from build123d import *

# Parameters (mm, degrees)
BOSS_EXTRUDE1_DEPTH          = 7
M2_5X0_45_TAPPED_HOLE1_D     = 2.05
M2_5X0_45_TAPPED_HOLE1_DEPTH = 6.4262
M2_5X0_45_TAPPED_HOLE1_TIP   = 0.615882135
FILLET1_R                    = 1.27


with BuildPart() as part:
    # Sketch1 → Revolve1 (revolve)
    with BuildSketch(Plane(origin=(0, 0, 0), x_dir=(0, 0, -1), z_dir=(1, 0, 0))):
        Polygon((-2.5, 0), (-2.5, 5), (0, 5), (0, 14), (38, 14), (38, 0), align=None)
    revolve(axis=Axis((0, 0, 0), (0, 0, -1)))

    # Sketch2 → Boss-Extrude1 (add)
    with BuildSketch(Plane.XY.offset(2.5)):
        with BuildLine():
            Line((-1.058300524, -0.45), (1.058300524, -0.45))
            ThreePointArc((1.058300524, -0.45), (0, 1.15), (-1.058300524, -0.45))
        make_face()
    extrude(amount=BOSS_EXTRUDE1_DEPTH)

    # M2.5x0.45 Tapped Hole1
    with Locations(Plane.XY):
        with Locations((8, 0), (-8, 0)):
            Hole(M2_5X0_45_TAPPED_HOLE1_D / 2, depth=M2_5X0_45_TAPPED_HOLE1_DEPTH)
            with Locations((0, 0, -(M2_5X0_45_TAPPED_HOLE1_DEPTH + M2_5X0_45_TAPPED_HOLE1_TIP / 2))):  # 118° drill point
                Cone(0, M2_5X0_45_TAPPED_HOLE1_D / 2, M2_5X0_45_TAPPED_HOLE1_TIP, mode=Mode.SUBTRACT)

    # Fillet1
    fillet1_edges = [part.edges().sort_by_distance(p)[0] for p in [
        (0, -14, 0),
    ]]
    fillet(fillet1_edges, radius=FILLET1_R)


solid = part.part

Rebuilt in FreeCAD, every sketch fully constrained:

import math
import FreeCAD as App
import Part
import Sketcher


def edges_at(feature, points):
    """Names of the edges that pass closest to the given points."""
    edges = feature.Shape.Edges
    near = lambda p: min(range(len(edges)), key=lambda i: edges[i].distToShape(Part.Vertex(*p))[0])
    return sorted({f"Edge{near(p) + 1}" for p in points})


def add_polygon(sketch, points):
    """Adds a closed chain of lines whose ends are joined by coincident constraints."""
    first, n = sketch.GeometryCount, len(points)
    for a, b in zip(points, points[1:] + points[:1]):
        sketch.addGeometry(Part.LineSegment(App.Vector(*a, 0), App.Vector(*b, 0)), False)
    for i in range(n):
        sketch.addConstraint(Sketcher.Constraint("Coincident", first + i, 2, first + (i + 1) % n, 1))

doc = App.newDocument("Part")
body = doc.addObject("PartDesign::Body", "Body")

# Sketch on YZ plane
sketch1 = body.newObject("Sketcher::SketchObject", "Sketch")
sketch1.AttachmentSupport = (doc.getObject("YZ_Plane"), [""])
sketch1.MapMode = "FlatFace"
add_polygon(sketch1, [(5, 2.5), (0, 2.5), (0, -38), (14, -38), (14, 0), (5, 0)])  # lines 0-5
sketch1.addConstraint(Sketcher.Constraint("Horizontal", 0))
sketch1.addConstraint(Sketcher.Constraint("Vertical", 1))
sketch1.addConstraint(Sketcher.Constraint("Horizontal", 2))
sketch1.addConstraint(Sketcher.Constraint("Vertical", 3))
sketch1.addConstraint(Sketcher.Constraint("Horizontal", 4))
sketch1.addConstraint(Sketcher.Constraint("Vertical", 5))
sketch1.addConstraint(Sketcher.Constraint("PointOnObject", 0, 2, -2))
sketch1.addConstraint(Sketcher.Constraint("PointOnObject", 3, 2, -1))
sketch1.addConstraint(Sketcher.Constraint("DistanceX", 0, 2, 0, 1, 5.0))
sketch1.addConstraint(Sketcher.Constraint("DistanceX", 2, 1, 2, 2, 14.0))
sketch1.addConstraint(Sketcher.Constraint("DistanceY", 3, 1, 3, 2, 38.0))
sketch1.addConstraint(Sketcher.Constraint("DistanceY", 1, 2, 1, 1, 40.5))
revolution = body.newObject("PartDesign::Revolution", "Revolution")
revolution.Profile = sketch1
revolution.ReferenceAxis = (sketch1, ["V_Axis"])
revolution.Angle = 360

# Sketch on XY plane
sketch2 = body.newObject("Sketcher::SketchObject", "Sketch001")
sketch2.AttachmentSupport = (doc.getObject("XY_Plane"), [""])
sketch2.MapMode = "FlatFace"
sketch2.AttachmentOffset = App.Placement(App.Vector(0, 0, 2.5), App.Rotation())
sketch2.addGeometry(Part.LineSegment(App.Vector(-1.1, -0.5, 0), App.Vector(1.1, -0.5, 0)), False)
sketch2.addGeometry(Part.ArcOfCircle(Part.Circle(App.Vector(0, 0, 0), App.Vector(0, 0, 1), 1.1), math.radians(-23), math.radians(203)), False)
sketch2.addConstraint(Sketcher.Constraint("Coincident", 0, 1, 1, 2))
sketch2.addConstraint(Sketcher.Constraint("Coincident", 1, 1, 0, 2))
sketch2.addConstraint(Sketcher.Constraint("Horizontal", 0))
sketch2.addConstraint(Sketcher.Constraint("Coincident", 1, 3, -1, 1))
sketch2.addConstraint(Sketcher.Constraint("Radius", 1, 1.15))
sketch2.addConstraint(Sketcher.Constraint("DistanceY", 0, 1, -1, 1, 0.45))
pad1 = body.newObject("PartDesign::Pad", "Pad")
pad1.Profile = sketch2
pad1.Length = 7

# Sketch on XY plane
sketch3 = body.newObject("Sketcher::SketchObject", "Sketch002")
sketch3.AttachmentSupport = (doc.getObject("XY_Plane"), [""])
sketch3.MapMode = "FlatFace"
sketch3.addGeometry(Part.Circle(App.Vector(8, 0, 0), App.Vector(0, 0, 1), 1), False)
sketch3.addGeometry(Part.Circle(App.Vector(-8, 0, 0), App.Vector(0, 0, 1), 1), False)
sketch3.addConstraint(Sketcher.Constraint("Equal", 0, 1))
sketch3.addConstraint(Sketcher.Constraint("Symmetric", 0, 3, 1, 3, -1, 1))
sketch3.addConstraint(Sketcher.Constraint("PointOnObject", 0, 3, -1))
sketch3.addConstraint(Sketcher.Constraint("Diameter", 0, 2.05))
sketch3.addConstraint(Sketcher.Constraint("DistanceX", -1, 1, 0, 3, 8.0))
doc.recompute()
hole = body.newObject("PartDesign::Hole", "Hole")
hole.Profile = sketch3
hole.ThreadType = "None"
hole.Diameter = 2.05
hole.DepthType = "Dimension"
hole.Depth = 6.4262
hole.DrillPoint = "Angled"
hole.DrillPointAngle = 118
doc.recompute()

fillet = body.newObject("PartDesign::Fillet", "Fillet")
fillet.Base = (hole, edges_at(hole, [(0, -14, 0)]))
fillet.Radius = 1.27

doc.recompute()
